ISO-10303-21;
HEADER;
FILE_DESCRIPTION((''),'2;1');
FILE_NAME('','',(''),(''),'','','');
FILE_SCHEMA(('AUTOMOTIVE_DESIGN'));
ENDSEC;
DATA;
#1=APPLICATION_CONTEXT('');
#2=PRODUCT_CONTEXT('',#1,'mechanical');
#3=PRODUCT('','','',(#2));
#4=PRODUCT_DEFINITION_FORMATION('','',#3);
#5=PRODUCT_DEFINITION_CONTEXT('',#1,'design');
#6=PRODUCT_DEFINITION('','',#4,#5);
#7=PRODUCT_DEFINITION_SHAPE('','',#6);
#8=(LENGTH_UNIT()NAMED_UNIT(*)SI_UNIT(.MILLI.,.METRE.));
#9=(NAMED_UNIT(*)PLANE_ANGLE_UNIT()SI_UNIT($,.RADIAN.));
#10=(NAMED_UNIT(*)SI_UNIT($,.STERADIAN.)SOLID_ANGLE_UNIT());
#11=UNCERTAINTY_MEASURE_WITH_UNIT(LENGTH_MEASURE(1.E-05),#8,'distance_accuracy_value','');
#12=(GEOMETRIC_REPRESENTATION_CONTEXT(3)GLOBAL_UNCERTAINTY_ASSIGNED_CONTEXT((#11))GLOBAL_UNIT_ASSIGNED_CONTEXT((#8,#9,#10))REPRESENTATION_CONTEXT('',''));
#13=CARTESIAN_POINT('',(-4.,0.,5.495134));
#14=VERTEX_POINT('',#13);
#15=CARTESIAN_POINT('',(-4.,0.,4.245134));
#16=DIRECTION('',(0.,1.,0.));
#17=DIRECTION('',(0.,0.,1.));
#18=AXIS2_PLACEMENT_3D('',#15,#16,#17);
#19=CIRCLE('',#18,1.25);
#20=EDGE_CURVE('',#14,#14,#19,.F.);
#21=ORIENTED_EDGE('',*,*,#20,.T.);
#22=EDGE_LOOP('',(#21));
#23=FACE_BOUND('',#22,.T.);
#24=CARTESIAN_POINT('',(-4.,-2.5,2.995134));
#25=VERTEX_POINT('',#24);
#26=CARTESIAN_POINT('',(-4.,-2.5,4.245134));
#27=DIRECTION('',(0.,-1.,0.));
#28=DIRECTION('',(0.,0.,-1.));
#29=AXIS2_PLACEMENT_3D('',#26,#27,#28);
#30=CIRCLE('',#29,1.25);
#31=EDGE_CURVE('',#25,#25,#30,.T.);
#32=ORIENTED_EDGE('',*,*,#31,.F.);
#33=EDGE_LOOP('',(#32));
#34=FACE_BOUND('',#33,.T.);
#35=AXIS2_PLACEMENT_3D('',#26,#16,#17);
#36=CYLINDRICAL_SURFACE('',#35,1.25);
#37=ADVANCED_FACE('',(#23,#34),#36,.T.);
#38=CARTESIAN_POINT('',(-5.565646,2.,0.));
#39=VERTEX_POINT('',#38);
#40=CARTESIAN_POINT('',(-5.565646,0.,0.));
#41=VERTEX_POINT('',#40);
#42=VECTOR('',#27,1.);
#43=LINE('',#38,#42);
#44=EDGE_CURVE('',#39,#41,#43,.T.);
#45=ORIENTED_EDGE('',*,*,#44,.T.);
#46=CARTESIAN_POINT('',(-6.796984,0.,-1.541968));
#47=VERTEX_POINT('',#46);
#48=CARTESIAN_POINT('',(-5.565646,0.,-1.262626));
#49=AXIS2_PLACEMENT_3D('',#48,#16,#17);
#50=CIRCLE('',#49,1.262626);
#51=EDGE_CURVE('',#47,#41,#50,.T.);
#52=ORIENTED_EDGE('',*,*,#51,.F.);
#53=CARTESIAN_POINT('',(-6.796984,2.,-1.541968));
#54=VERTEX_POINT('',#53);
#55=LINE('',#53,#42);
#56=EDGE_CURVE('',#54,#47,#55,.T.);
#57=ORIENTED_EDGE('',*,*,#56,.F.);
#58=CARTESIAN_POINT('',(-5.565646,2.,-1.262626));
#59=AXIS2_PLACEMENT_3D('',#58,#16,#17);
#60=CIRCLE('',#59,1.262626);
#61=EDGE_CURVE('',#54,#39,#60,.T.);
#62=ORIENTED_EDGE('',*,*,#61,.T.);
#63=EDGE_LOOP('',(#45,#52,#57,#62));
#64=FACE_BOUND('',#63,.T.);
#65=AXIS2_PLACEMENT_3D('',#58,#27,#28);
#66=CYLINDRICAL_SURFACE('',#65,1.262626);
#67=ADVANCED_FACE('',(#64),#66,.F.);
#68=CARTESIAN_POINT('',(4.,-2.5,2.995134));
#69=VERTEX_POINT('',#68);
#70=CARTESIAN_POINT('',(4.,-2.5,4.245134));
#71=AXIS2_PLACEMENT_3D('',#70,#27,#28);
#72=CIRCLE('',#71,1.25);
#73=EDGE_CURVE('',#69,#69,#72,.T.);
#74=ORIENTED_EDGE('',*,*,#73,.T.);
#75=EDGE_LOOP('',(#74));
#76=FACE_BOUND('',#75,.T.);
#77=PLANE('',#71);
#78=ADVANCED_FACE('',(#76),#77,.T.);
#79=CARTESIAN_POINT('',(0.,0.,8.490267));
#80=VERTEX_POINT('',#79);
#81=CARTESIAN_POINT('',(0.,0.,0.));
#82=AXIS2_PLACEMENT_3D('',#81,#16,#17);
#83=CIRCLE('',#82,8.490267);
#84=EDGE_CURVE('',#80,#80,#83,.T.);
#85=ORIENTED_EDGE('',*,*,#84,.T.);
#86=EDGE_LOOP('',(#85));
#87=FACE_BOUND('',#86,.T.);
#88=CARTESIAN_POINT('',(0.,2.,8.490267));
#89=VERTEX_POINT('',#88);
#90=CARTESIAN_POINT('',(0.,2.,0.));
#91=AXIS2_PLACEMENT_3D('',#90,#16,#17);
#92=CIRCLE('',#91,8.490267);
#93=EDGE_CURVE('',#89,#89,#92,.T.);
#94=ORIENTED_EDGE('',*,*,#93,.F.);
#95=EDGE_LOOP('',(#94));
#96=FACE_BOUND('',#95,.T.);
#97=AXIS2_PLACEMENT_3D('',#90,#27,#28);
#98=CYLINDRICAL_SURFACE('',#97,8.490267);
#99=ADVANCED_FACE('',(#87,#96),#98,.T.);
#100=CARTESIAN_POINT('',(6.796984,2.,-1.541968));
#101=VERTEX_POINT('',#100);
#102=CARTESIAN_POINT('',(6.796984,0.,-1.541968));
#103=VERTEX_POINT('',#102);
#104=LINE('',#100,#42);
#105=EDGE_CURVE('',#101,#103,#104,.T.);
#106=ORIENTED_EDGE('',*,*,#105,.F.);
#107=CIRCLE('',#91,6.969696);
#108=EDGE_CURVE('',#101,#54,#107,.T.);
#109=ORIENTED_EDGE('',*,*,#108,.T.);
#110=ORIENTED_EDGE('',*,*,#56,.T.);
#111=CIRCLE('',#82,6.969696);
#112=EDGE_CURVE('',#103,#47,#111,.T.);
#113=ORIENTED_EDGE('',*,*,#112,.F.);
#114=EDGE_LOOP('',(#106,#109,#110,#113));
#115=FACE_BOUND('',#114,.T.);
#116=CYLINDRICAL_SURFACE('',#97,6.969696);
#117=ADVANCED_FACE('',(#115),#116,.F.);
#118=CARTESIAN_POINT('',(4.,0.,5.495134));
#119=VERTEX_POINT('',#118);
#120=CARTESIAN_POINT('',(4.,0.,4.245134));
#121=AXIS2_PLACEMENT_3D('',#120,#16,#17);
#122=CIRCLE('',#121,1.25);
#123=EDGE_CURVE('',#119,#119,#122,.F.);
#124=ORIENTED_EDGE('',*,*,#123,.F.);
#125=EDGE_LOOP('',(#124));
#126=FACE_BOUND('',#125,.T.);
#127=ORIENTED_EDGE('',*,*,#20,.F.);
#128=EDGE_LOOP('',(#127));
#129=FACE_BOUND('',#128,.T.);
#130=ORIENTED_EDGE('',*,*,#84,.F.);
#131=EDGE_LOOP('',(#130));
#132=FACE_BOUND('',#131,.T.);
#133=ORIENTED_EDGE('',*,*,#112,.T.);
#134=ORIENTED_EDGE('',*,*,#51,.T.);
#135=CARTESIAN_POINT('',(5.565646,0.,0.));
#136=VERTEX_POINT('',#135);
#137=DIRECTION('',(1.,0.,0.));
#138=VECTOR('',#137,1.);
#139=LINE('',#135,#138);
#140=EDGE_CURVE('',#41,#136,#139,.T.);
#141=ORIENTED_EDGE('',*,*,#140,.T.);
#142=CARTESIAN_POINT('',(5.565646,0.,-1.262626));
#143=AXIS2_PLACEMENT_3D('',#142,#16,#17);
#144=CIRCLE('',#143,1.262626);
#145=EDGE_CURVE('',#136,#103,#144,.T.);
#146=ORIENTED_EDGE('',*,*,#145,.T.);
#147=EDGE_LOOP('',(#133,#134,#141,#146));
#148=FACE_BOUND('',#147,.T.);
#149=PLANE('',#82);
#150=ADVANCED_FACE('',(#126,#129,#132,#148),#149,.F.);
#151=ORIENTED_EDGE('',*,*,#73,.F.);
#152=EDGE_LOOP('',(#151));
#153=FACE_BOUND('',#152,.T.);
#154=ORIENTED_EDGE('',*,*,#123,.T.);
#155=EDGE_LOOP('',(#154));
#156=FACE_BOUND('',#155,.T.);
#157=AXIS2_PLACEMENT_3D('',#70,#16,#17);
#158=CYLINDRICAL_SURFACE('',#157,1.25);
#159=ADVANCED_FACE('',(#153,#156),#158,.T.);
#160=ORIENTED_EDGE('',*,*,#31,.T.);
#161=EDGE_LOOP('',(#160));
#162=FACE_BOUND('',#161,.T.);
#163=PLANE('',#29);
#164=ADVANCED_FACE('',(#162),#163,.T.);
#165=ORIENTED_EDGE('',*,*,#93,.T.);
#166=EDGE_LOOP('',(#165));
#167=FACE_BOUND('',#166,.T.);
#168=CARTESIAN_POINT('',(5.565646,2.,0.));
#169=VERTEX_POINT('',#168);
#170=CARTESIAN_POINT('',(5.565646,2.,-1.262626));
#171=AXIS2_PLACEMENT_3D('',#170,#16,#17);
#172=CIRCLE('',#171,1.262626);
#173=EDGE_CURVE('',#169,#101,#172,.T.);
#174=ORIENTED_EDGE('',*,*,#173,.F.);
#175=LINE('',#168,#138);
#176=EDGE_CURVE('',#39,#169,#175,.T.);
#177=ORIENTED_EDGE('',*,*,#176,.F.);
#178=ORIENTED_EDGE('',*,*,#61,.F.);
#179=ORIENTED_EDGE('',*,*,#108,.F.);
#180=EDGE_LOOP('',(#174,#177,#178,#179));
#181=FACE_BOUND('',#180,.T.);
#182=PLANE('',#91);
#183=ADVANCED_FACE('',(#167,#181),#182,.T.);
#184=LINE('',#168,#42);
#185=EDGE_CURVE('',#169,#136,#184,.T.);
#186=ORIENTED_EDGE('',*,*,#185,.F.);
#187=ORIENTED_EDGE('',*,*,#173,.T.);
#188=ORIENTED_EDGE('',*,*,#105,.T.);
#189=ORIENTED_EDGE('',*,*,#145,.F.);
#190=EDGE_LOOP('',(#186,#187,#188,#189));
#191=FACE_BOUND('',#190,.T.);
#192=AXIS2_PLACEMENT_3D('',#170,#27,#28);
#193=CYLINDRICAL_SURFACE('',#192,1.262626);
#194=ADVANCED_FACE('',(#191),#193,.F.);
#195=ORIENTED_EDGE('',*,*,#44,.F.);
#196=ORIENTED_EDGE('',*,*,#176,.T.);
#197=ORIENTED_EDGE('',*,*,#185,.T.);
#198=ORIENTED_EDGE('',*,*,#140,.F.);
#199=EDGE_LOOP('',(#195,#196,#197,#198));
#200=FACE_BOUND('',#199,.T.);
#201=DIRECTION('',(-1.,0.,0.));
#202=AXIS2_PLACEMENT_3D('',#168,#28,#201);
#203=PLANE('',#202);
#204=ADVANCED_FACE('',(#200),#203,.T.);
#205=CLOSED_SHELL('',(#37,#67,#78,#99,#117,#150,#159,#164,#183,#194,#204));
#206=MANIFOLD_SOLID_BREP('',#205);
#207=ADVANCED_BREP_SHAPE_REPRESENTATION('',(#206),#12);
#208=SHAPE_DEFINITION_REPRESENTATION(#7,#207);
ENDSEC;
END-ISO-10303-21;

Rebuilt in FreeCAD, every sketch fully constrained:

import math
import FreeCAD as App
import Part
import Sketcher
from FreeCAD import Vector
Q = App.Units.Quantity

doc = App.newDocument("Part")
body = doc.addObject("PartDesign::Body", "Body")

# Sketch on XZ plane
sketch1 = body.newObject("Sketcher::SketchObject", "Sketch")
sketch1.AttachmentSupport = (doc.getObject("XZ_Plane"), [""])
sketch1.MapMode = "FlatFace"
sketch1.addGeometry([
    Part.Circle(Vector(0, 0, 0), Vector(0, 0, 1), 8.5),  # 0
    Part.ArcOfCircle(Part.Circle(Vector(5.6, -1.3, 0), Vector(0, 0, 1), 1.3), math.radians(-13), math.radians(90)),  # 1
    Part.LineSegment(Vector(5.6, 0, 0), Vector(-5.6, 0, 0)),  # 2
    Part.ArcOfCircle(Part.Circle(Vector(-5.6, -1.3, 0), Vector(0, 0, 1), 1.3), math.radians(90), math.radians(193)),  # 3
    Part.ArcOfCircle(Part.Circle(Vector(0, 0, 0), Vector(0, 0, 1), 7), math.radians(-167), math.radians(-13)),  # 4
], False)
sketch1.addConstraint([
    Sketcher.Constraint("Tangent", 1, 2, 2, 1),
    Sketcher.Constraint("Tangent", 2, 2, 3, 1),
    Sketcher.Constraint("Tangent", 3, 2, 4, 1),
    Sketcher.Constraint("Tangent", 4, 2, 1, 1),
    Sketcher.Constraint("Horizontal", 2),
    Sketcher.Constraint("Coincident", 0, 3, -1, 1),
    Sketcher.Constraint("Coincident", 4, 3, -1, 1),
    Sketcher.Constraint("Equal", 1, 3),
    Sketcher.Constraint("PointOnObject", 1, 2, -1),
    Sketcher.Constraint("Diameter", 0, Q("16.980535 mm")),
    Sketcher.Constraint("Radius", 1, Q("1.262626 mm")),
    Sketcher.Constraint("Radius", 4, Q("6.969696 mm")),
])
pad1 = body.newObject("PartDesign::Pad", "Pad")
pad1.Profile = sketch1
pad1.Length = 2
pad1.Reversed = True

# Sketch on XZ plane
sketch2 = body.newObject("Sketcher::SketchObject", "Sketch001")
sketch2.AttachmentSupport = (doc.getObject("XZ_Plane"), [""])
sketch2.MapMode = "FlatFace"
sketch2.addGeometry([
    Part.Circle(Vector(-4, 4.2, 0), Vector(0, 0, 1), 1.2),
    Part.Circle(Vector(4, 4.2, 0), Vector(0, 0, 1), 1.2),
], False)
sketch2.addConstraint([
    Sketcher.Constraint("Equal", 0, 1),
    Sketcher.Constraint("Symmetric", 0, 3, 1, 3, -2),
    Sketcher.Constraint("Diameter", 0, Q("2.5 mm")),
    Sketcher.Constraint("DistanceX", 0, 3, -1, 1, Q("4 mm")),
    Sketcher.Constraint("DistanceY", -1, 1, 0, 3, Q("4.245134 mm")),
])
pad2 = body.newObject("PartDesign::Pad", "Pad001")
pad2.Profile = sketch2
pad2.Length = 2.5

doc.recompute()
